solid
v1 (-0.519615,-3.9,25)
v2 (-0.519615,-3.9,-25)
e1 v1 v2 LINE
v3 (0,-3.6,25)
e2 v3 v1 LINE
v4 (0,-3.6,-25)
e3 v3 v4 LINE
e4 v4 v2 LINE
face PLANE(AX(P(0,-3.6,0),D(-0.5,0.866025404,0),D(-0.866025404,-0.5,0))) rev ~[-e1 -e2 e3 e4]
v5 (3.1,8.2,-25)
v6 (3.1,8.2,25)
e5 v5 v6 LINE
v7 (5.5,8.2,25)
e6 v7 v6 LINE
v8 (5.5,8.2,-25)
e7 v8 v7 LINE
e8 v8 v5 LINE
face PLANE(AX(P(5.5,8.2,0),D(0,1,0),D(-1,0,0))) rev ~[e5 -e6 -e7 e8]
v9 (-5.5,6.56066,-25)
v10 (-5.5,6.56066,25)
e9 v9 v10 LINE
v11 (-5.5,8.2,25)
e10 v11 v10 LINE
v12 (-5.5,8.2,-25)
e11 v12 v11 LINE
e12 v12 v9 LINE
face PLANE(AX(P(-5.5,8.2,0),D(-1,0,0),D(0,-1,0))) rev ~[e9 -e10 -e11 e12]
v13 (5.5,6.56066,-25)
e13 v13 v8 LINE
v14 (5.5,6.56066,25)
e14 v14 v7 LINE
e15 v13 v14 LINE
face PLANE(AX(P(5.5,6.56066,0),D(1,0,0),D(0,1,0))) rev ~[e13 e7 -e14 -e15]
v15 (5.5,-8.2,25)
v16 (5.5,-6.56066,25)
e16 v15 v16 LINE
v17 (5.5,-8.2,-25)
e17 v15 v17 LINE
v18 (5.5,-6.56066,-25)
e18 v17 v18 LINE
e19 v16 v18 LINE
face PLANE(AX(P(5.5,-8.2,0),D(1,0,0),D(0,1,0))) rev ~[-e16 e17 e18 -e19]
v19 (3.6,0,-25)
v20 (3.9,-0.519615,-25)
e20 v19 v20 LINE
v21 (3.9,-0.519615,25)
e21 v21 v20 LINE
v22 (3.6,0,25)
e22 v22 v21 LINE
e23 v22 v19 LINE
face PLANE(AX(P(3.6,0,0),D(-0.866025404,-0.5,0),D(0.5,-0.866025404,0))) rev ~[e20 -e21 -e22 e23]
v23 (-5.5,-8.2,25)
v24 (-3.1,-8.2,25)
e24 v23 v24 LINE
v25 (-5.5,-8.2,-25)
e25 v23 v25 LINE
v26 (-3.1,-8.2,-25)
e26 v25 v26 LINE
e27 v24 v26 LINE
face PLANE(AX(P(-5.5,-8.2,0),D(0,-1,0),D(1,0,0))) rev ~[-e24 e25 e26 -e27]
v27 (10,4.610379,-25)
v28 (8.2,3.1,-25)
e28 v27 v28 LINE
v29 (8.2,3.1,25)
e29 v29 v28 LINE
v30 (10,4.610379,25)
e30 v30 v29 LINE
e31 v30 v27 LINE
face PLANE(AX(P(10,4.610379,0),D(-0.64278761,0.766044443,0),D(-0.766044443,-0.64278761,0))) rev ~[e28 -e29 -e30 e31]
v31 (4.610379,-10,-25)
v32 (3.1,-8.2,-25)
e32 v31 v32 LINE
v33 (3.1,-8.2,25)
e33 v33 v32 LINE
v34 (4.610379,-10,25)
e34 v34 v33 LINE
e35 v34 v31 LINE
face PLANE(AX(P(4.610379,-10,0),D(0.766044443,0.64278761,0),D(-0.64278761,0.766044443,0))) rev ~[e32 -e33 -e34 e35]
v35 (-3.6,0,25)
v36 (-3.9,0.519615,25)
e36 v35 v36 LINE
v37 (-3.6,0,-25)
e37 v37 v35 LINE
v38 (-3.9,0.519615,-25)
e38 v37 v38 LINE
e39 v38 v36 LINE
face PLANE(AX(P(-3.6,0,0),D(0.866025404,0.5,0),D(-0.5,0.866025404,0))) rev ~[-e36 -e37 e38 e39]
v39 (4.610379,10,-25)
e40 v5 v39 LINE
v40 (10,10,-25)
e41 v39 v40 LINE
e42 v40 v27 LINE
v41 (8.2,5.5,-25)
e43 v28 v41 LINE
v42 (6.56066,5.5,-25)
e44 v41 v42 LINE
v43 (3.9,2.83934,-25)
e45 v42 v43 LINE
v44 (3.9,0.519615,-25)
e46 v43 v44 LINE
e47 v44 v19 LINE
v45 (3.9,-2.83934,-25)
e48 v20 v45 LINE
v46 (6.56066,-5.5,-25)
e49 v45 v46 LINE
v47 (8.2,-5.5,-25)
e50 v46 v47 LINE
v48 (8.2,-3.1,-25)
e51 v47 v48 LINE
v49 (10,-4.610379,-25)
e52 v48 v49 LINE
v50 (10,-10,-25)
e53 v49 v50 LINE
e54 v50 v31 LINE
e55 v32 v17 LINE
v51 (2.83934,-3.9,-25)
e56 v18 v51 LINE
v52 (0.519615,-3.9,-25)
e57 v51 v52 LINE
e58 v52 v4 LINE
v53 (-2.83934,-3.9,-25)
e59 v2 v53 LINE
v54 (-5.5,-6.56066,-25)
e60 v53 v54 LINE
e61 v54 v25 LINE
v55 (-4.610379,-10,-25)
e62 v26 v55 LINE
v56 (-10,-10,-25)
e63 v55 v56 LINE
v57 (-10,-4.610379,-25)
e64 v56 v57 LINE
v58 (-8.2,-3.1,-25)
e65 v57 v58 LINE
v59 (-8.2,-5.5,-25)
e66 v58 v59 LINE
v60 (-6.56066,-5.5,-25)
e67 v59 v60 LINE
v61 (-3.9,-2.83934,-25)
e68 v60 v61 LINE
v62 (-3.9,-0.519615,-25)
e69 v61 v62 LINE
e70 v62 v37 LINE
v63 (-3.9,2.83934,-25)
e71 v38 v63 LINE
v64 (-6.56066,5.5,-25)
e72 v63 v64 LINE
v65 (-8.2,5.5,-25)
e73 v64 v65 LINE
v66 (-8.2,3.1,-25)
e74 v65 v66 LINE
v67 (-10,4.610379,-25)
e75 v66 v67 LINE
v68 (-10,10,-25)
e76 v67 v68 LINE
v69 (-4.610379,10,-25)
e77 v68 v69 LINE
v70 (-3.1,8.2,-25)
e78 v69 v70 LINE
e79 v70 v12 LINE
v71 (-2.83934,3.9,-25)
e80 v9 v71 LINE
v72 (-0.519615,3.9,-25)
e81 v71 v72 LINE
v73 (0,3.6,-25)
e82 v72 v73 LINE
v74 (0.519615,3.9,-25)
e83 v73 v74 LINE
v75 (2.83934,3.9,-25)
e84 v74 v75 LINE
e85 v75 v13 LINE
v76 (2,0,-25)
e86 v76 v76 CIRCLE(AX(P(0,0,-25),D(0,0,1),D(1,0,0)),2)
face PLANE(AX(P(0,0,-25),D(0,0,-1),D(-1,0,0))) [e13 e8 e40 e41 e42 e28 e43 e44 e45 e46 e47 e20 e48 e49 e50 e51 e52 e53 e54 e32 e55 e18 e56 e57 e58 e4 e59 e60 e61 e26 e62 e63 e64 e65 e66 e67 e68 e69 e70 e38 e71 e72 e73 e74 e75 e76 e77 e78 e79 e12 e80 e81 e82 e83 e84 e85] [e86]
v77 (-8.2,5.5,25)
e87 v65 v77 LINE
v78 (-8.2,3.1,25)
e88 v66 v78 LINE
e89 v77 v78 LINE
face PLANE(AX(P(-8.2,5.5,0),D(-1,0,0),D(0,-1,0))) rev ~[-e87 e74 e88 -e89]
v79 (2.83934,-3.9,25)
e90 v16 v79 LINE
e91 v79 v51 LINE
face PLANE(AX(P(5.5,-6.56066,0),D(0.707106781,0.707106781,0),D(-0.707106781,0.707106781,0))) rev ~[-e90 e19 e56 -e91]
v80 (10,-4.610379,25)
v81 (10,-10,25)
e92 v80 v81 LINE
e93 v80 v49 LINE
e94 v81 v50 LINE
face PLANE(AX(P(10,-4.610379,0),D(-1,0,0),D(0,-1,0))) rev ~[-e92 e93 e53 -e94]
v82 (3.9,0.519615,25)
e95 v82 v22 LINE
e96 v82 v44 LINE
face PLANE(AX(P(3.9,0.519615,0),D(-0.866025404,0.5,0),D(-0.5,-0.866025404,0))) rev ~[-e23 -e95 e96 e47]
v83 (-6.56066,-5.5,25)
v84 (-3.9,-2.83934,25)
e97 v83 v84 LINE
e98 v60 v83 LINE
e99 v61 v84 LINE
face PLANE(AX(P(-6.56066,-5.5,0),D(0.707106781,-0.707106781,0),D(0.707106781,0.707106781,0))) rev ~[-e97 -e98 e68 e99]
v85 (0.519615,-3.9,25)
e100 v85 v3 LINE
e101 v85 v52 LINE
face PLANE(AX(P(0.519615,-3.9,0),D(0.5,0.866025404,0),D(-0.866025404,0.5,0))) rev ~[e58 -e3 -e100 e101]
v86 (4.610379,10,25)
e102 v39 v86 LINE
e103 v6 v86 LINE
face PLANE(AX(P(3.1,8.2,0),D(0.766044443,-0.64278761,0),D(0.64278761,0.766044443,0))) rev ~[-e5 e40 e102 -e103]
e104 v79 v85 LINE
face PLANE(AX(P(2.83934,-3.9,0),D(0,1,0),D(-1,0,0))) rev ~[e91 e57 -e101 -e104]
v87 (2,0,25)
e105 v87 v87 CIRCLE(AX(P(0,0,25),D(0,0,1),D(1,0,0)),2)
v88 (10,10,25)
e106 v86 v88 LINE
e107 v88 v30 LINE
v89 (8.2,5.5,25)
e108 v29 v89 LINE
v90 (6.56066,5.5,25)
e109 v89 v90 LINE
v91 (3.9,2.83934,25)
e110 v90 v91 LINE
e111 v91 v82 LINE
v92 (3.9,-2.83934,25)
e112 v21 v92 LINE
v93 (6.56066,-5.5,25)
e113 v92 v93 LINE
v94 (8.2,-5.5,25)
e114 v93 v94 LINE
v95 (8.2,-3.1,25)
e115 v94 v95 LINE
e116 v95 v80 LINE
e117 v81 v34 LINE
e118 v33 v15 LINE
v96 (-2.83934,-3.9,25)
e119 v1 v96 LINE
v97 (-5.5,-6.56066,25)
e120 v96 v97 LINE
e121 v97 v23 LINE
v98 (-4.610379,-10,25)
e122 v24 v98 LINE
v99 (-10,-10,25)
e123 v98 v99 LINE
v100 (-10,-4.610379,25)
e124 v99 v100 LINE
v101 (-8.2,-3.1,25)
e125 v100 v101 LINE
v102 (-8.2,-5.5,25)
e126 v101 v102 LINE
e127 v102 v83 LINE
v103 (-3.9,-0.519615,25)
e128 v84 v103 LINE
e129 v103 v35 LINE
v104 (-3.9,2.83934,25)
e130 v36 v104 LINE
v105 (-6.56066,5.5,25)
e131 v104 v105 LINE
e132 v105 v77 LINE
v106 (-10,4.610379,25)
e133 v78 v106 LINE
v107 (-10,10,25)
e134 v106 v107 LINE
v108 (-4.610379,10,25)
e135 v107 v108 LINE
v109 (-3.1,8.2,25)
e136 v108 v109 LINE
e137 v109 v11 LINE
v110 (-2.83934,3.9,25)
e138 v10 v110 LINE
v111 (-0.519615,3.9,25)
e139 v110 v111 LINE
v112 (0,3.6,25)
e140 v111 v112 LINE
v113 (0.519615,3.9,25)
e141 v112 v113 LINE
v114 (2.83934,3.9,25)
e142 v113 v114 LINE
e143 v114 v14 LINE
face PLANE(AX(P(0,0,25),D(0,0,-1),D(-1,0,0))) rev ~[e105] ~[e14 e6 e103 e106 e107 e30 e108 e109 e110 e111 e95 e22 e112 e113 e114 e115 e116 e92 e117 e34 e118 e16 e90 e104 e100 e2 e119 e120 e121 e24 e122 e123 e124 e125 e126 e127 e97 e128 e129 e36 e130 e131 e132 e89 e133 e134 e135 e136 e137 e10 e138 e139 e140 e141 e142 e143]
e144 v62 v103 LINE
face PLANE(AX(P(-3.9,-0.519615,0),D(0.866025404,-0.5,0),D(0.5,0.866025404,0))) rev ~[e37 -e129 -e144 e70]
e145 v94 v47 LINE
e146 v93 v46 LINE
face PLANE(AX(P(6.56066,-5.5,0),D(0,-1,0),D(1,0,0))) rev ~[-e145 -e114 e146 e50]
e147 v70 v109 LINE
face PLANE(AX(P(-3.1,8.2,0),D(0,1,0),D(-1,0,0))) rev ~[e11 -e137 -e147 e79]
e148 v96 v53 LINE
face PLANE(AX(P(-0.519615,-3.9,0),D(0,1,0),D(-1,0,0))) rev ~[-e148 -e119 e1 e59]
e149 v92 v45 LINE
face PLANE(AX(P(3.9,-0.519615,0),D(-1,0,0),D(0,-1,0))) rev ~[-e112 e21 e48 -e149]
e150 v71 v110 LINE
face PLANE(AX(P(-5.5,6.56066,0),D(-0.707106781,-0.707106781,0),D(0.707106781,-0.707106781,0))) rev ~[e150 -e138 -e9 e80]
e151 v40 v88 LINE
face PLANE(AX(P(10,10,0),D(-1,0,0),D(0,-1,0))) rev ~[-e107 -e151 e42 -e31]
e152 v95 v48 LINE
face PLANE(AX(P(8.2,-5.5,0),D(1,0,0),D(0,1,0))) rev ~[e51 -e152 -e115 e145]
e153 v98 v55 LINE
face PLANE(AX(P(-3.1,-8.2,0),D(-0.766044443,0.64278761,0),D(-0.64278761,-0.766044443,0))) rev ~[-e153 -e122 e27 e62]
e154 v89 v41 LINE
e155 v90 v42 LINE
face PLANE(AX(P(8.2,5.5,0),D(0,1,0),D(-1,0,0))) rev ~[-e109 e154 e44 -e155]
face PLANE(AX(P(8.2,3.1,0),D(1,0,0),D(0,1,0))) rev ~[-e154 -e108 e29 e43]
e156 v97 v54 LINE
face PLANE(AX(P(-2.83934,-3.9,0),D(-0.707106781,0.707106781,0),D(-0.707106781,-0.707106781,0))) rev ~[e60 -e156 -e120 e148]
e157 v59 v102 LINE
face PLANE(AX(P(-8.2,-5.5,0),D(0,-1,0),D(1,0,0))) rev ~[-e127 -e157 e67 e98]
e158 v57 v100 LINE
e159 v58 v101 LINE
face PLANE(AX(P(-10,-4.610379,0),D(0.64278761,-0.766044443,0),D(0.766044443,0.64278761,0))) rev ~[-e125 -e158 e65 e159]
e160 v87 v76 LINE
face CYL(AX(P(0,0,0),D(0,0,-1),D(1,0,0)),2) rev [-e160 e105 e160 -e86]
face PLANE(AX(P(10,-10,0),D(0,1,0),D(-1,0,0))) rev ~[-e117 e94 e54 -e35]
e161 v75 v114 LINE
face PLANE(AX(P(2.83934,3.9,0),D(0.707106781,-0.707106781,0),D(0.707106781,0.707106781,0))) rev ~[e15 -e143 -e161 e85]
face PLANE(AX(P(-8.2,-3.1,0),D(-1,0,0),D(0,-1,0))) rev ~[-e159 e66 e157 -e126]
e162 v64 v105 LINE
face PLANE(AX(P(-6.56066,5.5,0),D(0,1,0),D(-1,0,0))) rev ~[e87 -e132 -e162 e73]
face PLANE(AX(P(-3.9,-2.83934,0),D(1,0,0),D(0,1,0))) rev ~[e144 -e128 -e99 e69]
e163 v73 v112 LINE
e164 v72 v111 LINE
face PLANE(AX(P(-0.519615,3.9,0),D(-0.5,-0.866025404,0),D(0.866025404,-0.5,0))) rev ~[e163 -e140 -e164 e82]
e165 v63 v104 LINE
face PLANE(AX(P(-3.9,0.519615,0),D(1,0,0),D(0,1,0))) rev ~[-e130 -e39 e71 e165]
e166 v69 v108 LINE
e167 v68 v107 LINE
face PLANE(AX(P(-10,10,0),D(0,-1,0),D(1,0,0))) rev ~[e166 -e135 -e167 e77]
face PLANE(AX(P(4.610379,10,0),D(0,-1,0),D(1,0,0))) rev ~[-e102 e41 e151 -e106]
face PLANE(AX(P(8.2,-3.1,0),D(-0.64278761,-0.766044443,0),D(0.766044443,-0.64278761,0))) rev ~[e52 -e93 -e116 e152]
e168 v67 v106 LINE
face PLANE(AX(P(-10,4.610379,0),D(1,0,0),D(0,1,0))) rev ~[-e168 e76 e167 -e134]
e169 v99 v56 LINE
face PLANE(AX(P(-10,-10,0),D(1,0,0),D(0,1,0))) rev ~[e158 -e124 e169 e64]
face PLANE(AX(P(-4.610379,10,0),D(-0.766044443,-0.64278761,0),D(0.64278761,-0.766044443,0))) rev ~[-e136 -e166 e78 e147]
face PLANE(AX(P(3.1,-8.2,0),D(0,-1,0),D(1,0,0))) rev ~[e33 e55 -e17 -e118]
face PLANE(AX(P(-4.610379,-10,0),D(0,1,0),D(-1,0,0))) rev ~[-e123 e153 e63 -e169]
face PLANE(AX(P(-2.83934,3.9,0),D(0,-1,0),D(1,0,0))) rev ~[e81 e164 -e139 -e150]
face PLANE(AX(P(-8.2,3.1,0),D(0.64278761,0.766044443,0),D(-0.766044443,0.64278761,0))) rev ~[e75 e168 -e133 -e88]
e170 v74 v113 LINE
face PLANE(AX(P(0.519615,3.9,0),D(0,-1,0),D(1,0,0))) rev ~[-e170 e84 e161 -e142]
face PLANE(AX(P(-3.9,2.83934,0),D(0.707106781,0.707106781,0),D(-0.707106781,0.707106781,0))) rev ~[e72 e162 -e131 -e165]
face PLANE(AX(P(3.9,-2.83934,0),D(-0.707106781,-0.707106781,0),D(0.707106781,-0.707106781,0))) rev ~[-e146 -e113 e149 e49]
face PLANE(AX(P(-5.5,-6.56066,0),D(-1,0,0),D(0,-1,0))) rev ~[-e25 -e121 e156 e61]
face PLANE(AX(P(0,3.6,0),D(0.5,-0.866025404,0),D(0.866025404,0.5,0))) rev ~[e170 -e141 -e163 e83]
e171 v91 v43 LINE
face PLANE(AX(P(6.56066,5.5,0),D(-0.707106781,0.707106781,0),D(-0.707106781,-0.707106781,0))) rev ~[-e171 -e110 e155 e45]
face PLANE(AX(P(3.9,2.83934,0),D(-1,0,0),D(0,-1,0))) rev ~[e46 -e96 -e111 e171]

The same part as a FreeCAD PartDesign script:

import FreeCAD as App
import Part
import Sketcher
from FreeCAD import Vector
Q = App.Units.Quantity


def add_polygon(sketch, points):
    """Adds a closed chain of lines whose ends are joined by coincident constraints."""
    first, n = sketch.GeometryCount, len(points)
    for a, b in zip(points, points[1:] + points[:1]):
        sketch.addGeometry(Part.LineSegment(App.Vector(*a, 0), App.Vector(*b, 0)), False)
    for i in range(n):
        sketch.addConstraint(Sketcher.Constraint("Coincident", first + i, 2, first + (i + 1) % n, 1))

doc = App.newDocument("Part")
params = doc.addObject("Spreadsheet::Sheet", "Params")
for row, (alias, value) in enumerate([
    ("sketch1_diameter", "4 mm"),
    ("sketch1_width", "2.4 mm"),
    ("sketch1_length", "0.6 mm"),
    ("pad1_length", "50 mm"),
], start=1):
    params.set(f"A{row}", alias)
    params.set(f"B{row}", "=" + value)
    params.setAlias(f"B{row}", alias)

body = doc.addObject("PartDesign::Body", "Body")

# Sketch on XY plane
sketch1 = body.newObject("Sketcher::SketchObject", "Sketch")
sketch1.AttachmentSupport = (doc.getObject("XY_Plane"), [""])
sketch1.MapMode = "FlatFace"
add_polygon(sketch1, [(10, 4.610379), (10, 10), (4.610379, 10), (3.1, 8.2), (5.5, 8.2), (5.5, 6.56066), (2.83934, 3.9), (0.519615, 3.9), (0, 3.6), (-0.519615, 3.9), (-2.83934, 3.9), (-5.5, 6.56066), (-5.5, 8.2), (-3.1, 8.2), (-4.610379, 10), (-10, 10), (-10, 4.610379), (-8.2, 3.1), (-8.2, 5.5), (-6.56066, 5.5), (-3.9, 2.83934), (-3.9, 0.519615), (-3.6, 0), (-3.9, -0.519615), (-3.9, -2.83934), (-6.56066, -5.5), (-8.2, -5.5), (-8.2, -3.1), (-10, -4.610379), (-10, -10), (-4.610379, -10), (-3.1, -8.2), (-5.5, -8.2), (-5.5, -6.56066), (-2.83934, -3.9), (-0.519615, -3.9), (0, -3.6), (0.519615, -3.9), (2.83934, -3.9), (5.5, -6.56066), (5.5, -8.2), (3.1, -8.2), (4.610379, -10), (10, -10), (10, -4.610379), (8.2, -3.1), (8.2, -5.5), (6.56066, -5.5), (3.9, -2.83934), (3.9, -0.519615), (3.6, 0), (3.9, 0.519615), (3.9, 2.83934), (6.56066, 5.5), (8.2, 5.5), (8.2, 3.1)])  # lines 0-55
sketch1.addGeometry(Part.Circle(Vector(0, 0, 0), Vector(0, 0, 1), 2), False)  # 56
sketch1.addConstraint([
    Sketcher.Constraint("Vertical", 0),
    Sketcher.Constraint("Horizontal", 1),
    Sketcher.Constraint("Horizontal", 3),
    Sketcher.Constraint("Vertical", 4),
    Sketcher.Constraint("Horizontal", 6),
    Sketcher.Constraint("Horizontal", 9),
    Sketcher.Constraint("Vertical", 11),
    Sketcher.Constraint("Horizontal", 12),
    Sketcher.Constraint("Horizontal", 14),
    Sketcher.Constraint("Vertical", 15),
    Sketcher.Constraint("Vertical", 17),
    Sketcher.Constraint("Horizontal", 18),
    Sketcher.Constraint("Vertical", 20),
    Sketcher.Constraint("Vertical", 23),
    Sketcher.Constraint("Horizontal", 25),
    Sketcher.Constraint("Vertical", 26),
    Sketcher.Constraint("Vertical", 28),
    Sketcher.Constraint("Horizontal", 29),
    Sketcher.Constraint("Horizontal", 31),
    Sketcher.Constraint("Vertical", 32),
    Sketcher.Constraint("Horizontal", 34),
    Sketcher.Constraint("Horizontal", 37),
    Sketcher.Constraint("Vertical", 39),
    Sketcher.Constraint("Horizontal", 40),
    Sketcher.Constraint("Horizontal", 42),
    Sketcher.Constraint("Vertical", 43),
    Sketcher.Constraint("Vertical", 45),
    Sketcher.Constraint("Horizontal", 46),
    Sketcher.Constraint("Vertical", 48),
    Sketcher.Constraint("Vertical", 51),
    Sketcher.Constraint("Horizontal", 53),
    Sketcher.Constraint("Vertical", 54),
    Sketcher.Constraint("Coincident", 56, 3, -1, 1),
    Sketcher.Constraint("Symmetric", 0, 2, 28, 2, -1, 1),
    Sketcher.Constraint("Symmetric", 2, 2, 30, 2, -1, 1),
    Sketcher.Constraint("Symmetric", 4, 2, 32, 2, -1, 1),
    Sketcher.Constraint("Symmetric", 5, 2, 33, 2, -1, 1),
    Sketcher.Constraint("Symmetric", 7, 2, 35, 2, -1, 1),
    Sketcher.Constraint("Symmetric", 8, 2, 36, 2, -1, 1),
    Sketcher.Constraint("Symmetric", 10, 2, 38, 2, -1, 1),
    Sketcher.Constraint("Symmetric", 12, 2, 40, 2, -1, 1),
    Sketcher.Constraint("Symmetric", 13, 2, 41, 2, -1, 1),
    Sketcher.Constraint("Symmetric", 15, 2, 43, 2, -1, 1),
    Sketcher.Constraint("Symmetric", 16, 2, 44, 2, -1, 1),
    Sketcher.Constraint("Symmetric", 18, 2, 46, 2, -1, 1),
    Sketcher.Constraint("Symmetric", 19, 2, 47, 2, -1, 1),
    Sketcher.Constraint("Symmetric", 21, 2, 49, 2, -1, 1),
    Sketcher.Constraint("Symmetric", 22, 2, 50, 2, -1, 1),
    Sketcher.Constraint("Symmetric", 24, 2, 52, 2, -1, 1),
    Sketcher.Constraint("Symmetric", 26, 2, 54, 2, -1, 1),
    Sketcher.Constraint("Symmetric", 6, 2, 8, 2, -2),
    Sketcher.Constraint("Symmetric", 4, 2, 10, 2, -2),
    Sketcher.Constraint("Symmetric", 2, 2, 12, 2, -2),
    Sketcher.Constraint("Symmetric", 1, 2, 13, 2, -2),
    Sketcher.Constraint("Symmetric", 27, 2, 43, 2, -2),
    Sketcher.Constraint("Symmetric", 26, 2, 44, 2, -2),
    Sketcher.Constraint("Symmetric", 24, 2, 46, 2, -2),
    Sketcher.Constraint("Symmetric", 23, 2, 47, 2, -2),
    Sketcher.Constraint("PointOnObject", 7, 2, -2),
    Sketcher.Constraint("PointOnObject", 21, 2, -1),
    Sketcher.Constraint("Perpendicular", 5, 10),
    Sketcher.Constraint("Perpendicular", 2, 16),
    Sketcher.Constraint("Parallel", 10, 19),
    Sketcher.Constraint("Perpendicular", 7, 21),
    Sketcher.Constraint("Perpendicular", 8, 22),
    Sketcher.Constraint("Perpendicular", 19, 24),
    Sketcher.Constraint("Perpendicular", 16, 30),
    Sketcher.Constraint("Perpendicular", 21, 35),
    Sketcher.Constraint("Perpendicular", 33, 38),
    Sketcher.Constraint("Perpendicular", 35, 49),
    Sketcher.Constraint("Perpendicular", 47, 52),
    Sketcher.Constraint("Perpendicular", 41, 55),
    Sketcher.Constraint("Equal", 42, 0),
    Sketcher.Constraint("Equal", 53, 4),
    Sketcher.Constraint("Equal", 40, 17),
    Sketcher.Constraint("Equal", 37, 20),
    Sketcher.Constraint("Equal", 13, 16),
    Sketcher.Constraint("Equal", 10, 19),
    Sketcher.Constraint("Equal", 8, 21),
    Sketcher.Constraint("Diameter", 56, 4.0),
    Sketcher.Constraint("Angle", 2, Q("-130 deg")),
    Sketcher.Constraint("Angle", 7, Q("-150 deg")),
    Sketcher.Constraint("DistanceX", 3, 1, 3, 2, 2.4),
    Sketcher.Constraint("DistanceX", -1, 1, 0, 2, 10.0),
    Sketcher.Constraint("Distance", 7, 0.6),
    Sketcher.Constraint("DistanceX", -1, 1, 2, 2, 3.1),
    Sketcher.Constraint("DistanceY", -1, 1, 2, 2, 8.2),
    Sketcher.Constraint("DistanceY", -1, 1, 5, 2, 3.9),
    Sketcher.Constraint("DistanceX", 18, 1, 18, 2, 1.63934),
])
sketch1.setExpression("Constraints[135]", "Params.sketch1_diameter")
sketch1.setExpression("Constraints[138]", "Params.sketch1_width")
sketch1.setExpression("Constraints[140]", "Params.sketch1_length")
pad1 = body.newObject("PartDesign::Pad", "Pad")
pad1.Profile = sketch1
pad1.setExpression("Length", "Params.pad1_length")
pad1.Midplane = True

doc.recompute()
